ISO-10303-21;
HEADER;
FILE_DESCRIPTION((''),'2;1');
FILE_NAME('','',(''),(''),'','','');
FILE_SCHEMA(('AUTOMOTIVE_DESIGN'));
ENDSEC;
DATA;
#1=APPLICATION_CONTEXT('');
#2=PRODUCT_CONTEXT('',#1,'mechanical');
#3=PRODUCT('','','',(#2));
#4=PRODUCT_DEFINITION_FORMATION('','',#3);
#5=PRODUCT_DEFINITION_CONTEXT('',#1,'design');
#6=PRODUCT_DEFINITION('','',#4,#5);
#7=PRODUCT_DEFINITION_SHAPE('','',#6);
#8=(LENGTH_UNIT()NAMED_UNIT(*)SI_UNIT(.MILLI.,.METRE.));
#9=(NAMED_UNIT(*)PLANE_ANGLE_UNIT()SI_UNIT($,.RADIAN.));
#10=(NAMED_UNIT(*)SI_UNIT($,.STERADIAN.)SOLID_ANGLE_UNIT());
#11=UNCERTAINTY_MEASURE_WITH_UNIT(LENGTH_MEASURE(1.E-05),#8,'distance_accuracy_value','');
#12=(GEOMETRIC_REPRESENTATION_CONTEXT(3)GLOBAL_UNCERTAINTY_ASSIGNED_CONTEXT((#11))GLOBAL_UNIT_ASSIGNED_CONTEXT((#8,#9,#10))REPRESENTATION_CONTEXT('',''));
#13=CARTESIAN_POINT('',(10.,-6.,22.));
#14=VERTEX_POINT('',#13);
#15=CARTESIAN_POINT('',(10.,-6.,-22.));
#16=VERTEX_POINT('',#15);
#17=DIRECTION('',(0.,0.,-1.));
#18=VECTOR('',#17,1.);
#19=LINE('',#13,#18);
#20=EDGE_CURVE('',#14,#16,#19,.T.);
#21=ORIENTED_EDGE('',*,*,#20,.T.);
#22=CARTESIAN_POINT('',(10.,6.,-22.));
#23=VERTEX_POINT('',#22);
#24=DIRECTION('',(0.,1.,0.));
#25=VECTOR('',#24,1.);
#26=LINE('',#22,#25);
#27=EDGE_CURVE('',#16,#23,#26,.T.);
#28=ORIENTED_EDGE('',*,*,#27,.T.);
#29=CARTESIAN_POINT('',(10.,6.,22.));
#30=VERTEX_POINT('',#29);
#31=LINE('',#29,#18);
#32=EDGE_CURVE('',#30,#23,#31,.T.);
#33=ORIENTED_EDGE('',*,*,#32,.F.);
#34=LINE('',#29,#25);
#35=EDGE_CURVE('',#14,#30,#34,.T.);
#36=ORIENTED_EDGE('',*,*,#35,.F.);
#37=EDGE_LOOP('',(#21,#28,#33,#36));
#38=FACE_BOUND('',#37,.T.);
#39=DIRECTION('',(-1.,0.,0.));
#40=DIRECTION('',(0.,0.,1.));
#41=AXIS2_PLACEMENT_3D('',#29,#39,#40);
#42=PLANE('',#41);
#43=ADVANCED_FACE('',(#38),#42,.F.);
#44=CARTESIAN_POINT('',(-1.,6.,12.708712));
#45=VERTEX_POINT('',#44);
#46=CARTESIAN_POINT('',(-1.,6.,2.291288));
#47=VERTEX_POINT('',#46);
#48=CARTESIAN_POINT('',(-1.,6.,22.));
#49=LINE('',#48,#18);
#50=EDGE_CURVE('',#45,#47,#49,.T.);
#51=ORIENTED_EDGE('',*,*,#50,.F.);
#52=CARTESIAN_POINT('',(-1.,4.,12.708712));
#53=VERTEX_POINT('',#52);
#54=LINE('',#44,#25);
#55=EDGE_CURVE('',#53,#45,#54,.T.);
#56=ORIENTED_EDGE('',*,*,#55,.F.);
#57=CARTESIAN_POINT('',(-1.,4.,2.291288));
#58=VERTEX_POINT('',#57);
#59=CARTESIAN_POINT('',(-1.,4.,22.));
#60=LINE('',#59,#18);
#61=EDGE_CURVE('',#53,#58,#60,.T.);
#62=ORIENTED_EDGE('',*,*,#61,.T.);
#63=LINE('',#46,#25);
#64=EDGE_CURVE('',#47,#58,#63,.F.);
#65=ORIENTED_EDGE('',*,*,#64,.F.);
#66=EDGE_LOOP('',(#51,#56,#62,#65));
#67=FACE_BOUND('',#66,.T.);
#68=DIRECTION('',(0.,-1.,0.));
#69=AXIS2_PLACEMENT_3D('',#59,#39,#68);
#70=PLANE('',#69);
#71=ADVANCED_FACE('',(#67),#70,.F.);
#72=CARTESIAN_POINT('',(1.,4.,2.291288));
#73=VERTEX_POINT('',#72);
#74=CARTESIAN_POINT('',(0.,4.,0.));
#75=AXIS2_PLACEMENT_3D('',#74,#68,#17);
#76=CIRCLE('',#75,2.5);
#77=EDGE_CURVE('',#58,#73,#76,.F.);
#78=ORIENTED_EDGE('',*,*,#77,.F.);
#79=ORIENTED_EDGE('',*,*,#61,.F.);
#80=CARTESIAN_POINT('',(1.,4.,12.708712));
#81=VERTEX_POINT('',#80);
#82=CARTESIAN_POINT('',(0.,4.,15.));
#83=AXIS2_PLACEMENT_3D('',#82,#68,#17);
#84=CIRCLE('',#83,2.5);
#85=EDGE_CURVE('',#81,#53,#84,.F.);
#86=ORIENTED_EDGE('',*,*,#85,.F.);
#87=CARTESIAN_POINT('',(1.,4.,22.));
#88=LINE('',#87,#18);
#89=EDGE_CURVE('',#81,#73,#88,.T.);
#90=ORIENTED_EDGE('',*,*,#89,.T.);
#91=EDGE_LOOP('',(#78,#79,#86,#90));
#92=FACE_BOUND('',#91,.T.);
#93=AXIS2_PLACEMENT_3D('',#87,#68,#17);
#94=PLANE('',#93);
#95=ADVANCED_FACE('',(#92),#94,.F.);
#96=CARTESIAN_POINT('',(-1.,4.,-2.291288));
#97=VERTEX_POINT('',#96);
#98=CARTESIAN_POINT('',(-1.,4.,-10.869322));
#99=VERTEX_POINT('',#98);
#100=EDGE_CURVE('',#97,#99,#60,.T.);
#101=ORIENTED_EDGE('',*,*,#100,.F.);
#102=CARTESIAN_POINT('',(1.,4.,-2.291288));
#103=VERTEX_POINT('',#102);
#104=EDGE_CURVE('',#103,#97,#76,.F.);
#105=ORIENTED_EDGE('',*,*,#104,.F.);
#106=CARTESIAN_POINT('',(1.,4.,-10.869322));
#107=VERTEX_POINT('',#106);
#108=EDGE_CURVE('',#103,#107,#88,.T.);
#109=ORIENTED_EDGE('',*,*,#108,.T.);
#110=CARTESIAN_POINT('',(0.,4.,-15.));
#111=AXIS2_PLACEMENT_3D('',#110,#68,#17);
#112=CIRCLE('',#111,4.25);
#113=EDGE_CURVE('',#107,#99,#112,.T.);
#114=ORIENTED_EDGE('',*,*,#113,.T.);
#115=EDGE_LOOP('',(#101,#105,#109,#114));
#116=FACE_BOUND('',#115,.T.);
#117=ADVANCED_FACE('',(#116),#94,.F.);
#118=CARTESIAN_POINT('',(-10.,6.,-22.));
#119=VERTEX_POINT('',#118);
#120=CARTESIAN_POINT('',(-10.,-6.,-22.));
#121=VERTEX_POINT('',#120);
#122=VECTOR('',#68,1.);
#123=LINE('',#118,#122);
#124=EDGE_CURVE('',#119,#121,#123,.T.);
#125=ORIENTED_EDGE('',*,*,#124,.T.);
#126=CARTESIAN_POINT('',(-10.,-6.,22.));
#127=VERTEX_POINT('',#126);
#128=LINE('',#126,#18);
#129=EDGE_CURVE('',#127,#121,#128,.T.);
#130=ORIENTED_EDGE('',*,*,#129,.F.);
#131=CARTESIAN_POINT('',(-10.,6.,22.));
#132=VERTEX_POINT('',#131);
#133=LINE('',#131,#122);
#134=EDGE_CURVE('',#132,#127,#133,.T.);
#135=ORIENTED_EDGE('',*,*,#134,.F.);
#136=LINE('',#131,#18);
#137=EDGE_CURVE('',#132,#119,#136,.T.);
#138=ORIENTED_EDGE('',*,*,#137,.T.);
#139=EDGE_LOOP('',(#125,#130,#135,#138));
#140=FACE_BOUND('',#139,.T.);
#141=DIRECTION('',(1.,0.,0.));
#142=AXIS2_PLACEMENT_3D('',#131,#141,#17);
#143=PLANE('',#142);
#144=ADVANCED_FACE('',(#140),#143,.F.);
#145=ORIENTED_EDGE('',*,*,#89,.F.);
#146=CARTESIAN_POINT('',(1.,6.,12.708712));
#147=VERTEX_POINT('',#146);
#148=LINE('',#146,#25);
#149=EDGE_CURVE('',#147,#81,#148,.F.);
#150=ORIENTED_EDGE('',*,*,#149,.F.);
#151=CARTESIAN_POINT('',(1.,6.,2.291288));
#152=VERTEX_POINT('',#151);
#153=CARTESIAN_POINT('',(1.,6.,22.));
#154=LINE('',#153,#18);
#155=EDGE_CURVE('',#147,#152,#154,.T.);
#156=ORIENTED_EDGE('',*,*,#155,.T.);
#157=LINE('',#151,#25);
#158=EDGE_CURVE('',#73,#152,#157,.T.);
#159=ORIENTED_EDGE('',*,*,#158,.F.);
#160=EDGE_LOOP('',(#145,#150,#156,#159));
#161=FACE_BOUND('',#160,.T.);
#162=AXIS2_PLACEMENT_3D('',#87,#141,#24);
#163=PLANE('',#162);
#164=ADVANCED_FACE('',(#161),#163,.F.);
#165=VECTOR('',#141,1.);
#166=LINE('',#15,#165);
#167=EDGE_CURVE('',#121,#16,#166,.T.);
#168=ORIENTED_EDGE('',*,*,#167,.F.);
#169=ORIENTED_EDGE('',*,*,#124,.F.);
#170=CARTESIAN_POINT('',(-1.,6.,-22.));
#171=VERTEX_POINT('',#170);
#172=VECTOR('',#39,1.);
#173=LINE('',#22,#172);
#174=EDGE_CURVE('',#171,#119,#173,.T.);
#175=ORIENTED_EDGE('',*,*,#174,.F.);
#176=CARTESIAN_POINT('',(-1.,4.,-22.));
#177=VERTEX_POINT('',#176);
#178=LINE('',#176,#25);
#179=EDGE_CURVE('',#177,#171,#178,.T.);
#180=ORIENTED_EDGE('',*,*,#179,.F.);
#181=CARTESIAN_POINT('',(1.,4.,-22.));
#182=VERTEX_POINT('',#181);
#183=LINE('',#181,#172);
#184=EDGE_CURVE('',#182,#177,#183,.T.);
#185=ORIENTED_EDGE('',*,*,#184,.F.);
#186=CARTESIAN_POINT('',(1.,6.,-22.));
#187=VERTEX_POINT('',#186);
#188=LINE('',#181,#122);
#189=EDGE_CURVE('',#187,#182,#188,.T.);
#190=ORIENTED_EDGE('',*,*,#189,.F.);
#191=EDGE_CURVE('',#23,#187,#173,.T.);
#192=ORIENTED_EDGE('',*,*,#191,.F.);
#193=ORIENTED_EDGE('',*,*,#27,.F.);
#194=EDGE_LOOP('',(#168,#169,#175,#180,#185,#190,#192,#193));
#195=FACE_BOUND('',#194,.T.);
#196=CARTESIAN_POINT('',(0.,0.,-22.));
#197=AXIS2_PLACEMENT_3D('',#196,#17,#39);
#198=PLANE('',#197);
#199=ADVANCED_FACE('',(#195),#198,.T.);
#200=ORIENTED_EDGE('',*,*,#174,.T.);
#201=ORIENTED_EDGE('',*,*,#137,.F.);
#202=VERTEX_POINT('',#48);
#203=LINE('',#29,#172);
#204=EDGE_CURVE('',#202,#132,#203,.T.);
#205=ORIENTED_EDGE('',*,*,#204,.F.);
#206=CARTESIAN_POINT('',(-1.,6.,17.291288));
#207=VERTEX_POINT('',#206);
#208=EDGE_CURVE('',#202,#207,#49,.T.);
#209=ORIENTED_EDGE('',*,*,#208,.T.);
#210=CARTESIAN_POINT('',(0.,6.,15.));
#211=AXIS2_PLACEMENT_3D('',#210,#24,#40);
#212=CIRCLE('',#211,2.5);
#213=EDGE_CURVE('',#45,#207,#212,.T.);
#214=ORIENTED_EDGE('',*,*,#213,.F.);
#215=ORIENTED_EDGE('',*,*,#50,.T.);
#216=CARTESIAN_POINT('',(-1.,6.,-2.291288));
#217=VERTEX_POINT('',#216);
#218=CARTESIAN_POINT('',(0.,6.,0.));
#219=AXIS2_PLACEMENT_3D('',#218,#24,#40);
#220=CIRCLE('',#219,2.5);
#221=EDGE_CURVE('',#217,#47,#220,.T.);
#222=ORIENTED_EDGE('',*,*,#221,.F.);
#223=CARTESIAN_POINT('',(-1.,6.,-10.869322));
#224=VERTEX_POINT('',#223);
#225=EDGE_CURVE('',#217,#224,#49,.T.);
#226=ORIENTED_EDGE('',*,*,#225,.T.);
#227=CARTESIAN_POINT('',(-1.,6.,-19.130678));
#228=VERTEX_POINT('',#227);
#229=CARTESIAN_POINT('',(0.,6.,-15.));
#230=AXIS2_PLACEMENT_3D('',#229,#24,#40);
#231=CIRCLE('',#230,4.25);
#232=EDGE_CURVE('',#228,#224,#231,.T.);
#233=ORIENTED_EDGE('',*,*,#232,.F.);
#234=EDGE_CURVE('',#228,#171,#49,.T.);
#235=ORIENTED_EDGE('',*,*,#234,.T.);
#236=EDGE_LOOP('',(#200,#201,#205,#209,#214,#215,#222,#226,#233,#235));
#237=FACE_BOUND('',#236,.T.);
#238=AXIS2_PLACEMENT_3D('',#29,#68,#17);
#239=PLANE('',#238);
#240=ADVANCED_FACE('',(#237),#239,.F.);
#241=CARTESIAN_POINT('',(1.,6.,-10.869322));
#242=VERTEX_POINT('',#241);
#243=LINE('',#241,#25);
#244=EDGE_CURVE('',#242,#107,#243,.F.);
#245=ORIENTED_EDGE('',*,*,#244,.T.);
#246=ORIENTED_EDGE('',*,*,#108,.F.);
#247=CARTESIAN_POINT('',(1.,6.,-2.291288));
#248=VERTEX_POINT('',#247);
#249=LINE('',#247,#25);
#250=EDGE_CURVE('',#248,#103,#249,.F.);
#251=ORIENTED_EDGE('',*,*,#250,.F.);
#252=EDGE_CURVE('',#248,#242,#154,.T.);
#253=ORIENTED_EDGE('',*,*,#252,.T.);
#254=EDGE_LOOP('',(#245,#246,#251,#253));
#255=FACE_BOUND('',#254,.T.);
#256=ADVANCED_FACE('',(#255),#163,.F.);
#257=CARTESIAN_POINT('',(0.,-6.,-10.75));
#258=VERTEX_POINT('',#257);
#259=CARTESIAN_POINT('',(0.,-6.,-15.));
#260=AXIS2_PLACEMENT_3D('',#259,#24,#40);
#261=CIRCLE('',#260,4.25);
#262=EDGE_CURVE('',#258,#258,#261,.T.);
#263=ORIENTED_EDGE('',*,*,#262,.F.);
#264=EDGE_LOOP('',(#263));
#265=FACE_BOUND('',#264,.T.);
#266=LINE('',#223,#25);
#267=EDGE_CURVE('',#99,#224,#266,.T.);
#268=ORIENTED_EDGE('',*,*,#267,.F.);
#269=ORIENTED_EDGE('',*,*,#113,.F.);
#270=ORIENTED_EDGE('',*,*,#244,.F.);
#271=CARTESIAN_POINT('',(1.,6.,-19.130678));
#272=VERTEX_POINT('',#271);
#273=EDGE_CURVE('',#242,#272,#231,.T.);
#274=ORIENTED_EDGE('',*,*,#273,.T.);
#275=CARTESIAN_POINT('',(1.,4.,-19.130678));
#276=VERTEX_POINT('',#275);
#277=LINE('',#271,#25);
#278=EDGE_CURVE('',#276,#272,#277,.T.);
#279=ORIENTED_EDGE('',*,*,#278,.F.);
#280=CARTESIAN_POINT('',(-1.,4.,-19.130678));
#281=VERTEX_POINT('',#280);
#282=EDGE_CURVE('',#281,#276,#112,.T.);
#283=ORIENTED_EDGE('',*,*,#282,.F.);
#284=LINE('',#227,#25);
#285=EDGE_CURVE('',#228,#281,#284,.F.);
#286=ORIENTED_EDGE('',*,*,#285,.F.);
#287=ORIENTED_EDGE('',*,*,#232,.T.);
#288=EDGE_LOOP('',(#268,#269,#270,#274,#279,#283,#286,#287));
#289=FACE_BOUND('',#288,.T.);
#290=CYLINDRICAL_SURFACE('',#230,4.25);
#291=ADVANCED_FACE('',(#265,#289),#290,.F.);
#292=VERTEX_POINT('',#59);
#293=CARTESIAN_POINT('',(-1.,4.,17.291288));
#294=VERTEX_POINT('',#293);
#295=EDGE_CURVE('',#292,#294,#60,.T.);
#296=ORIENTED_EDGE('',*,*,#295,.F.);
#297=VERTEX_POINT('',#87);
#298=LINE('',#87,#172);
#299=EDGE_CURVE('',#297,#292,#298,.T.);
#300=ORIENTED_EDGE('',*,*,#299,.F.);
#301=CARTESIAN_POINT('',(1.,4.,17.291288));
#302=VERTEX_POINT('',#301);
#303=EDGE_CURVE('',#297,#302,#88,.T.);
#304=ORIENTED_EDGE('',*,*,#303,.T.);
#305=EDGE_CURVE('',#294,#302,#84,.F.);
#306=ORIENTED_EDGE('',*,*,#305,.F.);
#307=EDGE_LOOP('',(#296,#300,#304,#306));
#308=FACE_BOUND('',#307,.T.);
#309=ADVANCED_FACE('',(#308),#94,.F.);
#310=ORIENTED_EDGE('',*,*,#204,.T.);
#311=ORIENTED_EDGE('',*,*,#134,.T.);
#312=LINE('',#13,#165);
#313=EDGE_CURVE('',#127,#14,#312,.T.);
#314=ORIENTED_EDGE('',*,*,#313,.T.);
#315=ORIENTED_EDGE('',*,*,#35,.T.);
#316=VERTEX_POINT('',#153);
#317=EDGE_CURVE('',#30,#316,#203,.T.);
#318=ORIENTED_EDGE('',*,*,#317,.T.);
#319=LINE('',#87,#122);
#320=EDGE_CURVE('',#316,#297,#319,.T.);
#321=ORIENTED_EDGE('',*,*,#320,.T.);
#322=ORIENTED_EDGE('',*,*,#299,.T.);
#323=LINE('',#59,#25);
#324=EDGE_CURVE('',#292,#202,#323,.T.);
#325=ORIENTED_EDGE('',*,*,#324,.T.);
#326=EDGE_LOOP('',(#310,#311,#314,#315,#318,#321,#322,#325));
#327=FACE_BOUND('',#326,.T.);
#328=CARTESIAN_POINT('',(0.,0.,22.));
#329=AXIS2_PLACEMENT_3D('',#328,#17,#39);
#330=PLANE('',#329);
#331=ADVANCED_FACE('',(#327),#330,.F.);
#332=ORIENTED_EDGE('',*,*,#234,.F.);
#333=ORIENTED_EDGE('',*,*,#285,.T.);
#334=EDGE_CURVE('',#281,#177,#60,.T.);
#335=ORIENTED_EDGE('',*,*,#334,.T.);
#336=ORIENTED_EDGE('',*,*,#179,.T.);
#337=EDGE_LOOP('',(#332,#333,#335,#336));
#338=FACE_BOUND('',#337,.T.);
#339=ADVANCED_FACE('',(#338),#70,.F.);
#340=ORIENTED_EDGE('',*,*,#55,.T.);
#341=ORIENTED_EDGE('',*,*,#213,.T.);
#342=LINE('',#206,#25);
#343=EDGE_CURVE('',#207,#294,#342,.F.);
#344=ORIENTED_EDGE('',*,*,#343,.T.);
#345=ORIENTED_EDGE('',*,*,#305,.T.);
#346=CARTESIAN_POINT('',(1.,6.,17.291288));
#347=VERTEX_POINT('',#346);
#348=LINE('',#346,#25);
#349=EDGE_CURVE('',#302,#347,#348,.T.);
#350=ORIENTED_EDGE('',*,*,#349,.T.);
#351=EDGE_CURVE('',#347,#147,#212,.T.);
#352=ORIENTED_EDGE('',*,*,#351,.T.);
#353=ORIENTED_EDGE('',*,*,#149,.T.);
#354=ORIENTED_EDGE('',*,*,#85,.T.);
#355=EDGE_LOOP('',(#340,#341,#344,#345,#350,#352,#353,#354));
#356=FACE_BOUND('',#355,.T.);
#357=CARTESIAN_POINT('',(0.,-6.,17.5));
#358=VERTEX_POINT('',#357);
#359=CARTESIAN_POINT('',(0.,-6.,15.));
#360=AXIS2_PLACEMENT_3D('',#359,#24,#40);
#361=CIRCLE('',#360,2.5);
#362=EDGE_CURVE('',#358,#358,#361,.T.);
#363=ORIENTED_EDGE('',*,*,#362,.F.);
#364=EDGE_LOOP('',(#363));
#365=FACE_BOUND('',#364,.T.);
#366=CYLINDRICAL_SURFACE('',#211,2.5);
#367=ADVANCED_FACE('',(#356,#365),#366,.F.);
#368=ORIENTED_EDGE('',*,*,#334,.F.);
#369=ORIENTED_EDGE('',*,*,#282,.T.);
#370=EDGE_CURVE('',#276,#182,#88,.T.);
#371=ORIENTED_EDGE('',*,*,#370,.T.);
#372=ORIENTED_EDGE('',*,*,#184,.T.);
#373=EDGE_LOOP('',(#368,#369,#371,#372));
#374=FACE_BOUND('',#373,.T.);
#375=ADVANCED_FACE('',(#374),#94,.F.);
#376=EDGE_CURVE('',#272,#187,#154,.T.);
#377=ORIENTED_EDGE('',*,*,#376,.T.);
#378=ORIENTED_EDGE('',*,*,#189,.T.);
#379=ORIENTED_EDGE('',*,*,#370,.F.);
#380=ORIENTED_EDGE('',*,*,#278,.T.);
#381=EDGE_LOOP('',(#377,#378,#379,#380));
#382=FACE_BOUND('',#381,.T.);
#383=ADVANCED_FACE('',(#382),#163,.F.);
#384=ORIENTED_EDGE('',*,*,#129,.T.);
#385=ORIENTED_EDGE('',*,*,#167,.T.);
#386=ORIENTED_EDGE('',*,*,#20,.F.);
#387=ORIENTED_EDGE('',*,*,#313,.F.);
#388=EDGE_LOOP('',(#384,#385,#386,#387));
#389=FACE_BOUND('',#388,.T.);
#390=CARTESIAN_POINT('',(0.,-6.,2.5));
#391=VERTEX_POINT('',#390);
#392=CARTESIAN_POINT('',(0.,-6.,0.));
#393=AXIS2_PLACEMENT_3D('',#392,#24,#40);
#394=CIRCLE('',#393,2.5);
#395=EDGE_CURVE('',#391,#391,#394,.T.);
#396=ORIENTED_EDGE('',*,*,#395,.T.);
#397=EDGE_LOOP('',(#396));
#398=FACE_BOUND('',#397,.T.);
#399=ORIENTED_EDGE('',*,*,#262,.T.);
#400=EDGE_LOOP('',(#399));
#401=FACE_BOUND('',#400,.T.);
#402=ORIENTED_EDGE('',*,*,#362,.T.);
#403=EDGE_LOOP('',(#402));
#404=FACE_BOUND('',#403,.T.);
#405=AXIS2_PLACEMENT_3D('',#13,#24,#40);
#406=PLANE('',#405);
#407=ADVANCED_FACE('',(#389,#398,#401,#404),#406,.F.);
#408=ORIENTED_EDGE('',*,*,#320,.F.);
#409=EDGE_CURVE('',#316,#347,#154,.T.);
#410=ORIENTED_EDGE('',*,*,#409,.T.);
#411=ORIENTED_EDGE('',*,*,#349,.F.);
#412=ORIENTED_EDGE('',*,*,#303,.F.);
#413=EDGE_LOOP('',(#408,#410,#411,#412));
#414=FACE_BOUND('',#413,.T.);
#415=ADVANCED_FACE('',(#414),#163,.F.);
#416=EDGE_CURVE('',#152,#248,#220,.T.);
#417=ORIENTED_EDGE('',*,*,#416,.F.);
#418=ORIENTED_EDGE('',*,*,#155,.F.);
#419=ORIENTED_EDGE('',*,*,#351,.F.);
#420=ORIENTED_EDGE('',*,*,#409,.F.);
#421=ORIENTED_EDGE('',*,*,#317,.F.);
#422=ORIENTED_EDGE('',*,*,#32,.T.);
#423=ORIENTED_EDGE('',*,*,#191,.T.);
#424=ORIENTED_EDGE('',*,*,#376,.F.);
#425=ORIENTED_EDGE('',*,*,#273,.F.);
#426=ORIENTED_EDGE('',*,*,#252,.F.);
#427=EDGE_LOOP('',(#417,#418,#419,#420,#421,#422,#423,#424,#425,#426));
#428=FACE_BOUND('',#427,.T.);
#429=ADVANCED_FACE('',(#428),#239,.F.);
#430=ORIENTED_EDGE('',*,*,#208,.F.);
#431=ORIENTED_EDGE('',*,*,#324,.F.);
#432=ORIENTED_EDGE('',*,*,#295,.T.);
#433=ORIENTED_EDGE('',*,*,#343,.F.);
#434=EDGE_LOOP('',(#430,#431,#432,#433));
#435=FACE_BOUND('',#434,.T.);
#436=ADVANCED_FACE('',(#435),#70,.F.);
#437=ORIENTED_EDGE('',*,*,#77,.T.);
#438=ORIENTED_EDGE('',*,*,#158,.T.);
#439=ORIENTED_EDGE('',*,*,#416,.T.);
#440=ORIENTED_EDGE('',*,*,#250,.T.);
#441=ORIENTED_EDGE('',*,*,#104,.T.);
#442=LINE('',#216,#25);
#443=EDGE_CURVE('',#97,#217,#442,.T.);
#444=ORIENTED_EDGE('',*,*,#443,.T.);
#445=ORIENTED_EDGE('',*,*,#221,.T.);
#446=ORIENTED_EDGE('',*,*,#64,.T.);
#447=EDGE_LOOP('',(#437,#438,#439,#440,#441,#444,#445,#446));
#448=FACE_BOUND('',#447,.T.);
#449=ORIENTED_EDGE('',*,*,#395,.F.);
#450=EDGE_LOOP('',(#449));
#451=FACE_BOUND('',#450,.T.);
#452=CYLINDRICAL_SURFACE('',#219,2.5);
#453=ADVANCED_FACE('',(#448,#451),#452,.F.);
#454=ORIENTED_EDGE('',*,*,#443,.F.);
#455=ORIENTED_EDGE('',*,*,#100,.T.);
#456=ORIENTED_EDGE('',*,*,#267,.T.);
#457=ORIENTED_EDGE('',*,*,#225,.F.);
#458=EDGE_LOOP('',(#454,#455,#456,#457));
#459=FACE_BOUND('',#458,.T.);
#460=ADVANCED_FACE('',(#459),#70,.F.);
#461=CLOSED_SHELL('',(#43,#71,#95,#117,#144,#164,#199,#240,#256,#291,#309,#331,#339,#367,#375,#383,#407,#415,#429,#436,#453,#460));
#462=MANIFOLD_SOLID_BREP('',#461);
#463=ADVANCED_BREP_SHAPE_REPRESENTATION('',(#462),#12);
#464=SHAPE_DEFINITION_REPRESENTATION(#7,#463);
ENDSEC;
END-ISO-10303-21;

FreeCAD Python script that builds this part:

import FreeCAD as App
import Part
import Sketcher
from FreeCAD import Vector

doc = App.newDocument("Part")
body = doc.addObject("PartDesign::Body", "Body")

sketch1 = body.newObject("Sketcher::SketchObject", "Sketch")
sketch1.AttachmentSupport = (doc.getObject("XY_Plane"), [""])
sketch1.MapMode = "FlatFace"
sketch1.addGeometry(Part.LineSegment(Vector(-10, 6, 0), Vector(-10, -6, 0)), False)
sketch1.addGeometry(Part.LineSegment(Vector(-10, -6, 0), Vector(10, -6, 0)), False)
sketch1.addGeometry(Part.LineSegment(Vector(10, -6, 0), Vector(10, 6, 0)), False)
sketch1.addGeometry(Part.LineSegment(Vector(10, 6, 0), Vector(-10, 6, 0)), False)
sketch1.addConstraint(Sketcher.Constraint("Coincident", 0, 2, 1, 1))
sketch1.addConstraint(Sketcher.Constraint("Coincident", 1, 2, 2, 1))
sketch1.addConstraint(Sketcher.Constraint("Coincident", 2, 2, 3, 1))
sketch1.addConstraint(Sketcher.Constraint("Coincident", 3, 2, 0, 1))
sketch1.addConstraint(Sketcher.Constraint("Vertical", 0))
sketch1.addConstraint(Sketcher.Constraint("Horizontal", 1))
sketch1.addConstraint(Sketcher.Constraint("Vertical", 2))
sketch1.addConstraint(Sketcher.Constraint("Horizontal", 3))
sketch1.addConstraint(Sketcher.Constraint("Symmetric", 0, 2, 2, 2, -1, 1))
sketch1.addConstraint(Sketcher.Constraint("DistanceX", 1, 1, 1, 2, 20.0))
sketch1.addConstraint(Sketcher.Constraint("DistanceY", 0, 2, 0, 1, 12.0))
pad1 = body.newObject("PartDesign::Pad", "Pad")
pad1.Profile = sketch1
pad1.Length = 44
pad1.Midplane = True

sketch2 = body.newObject("Sketcher::SketchObject", "Sketch001")
sketch2.AttachmentSupport = (doc.getObject("XZ_Plane"), [""])
sketch2.MapMode = "FlatFace"
sketch2.AttachmentOffset = App.Placement(Vector(0, 0, -6), App.Rotation())
sketch2.addGeometry(Part.Circle(Vector(0, 15, 0), Vector(0, 0, 1), 2.5), False)
sketch2.addGeometry(Part.Circle(Vector(0, 0, 0), Vector(0, 0, 1), 2.5), False)
sketch2.addGeometry(Part.Circle(Vector(0, -15, 0), Vector(0, 0, 1), 2.5), False)
sketch2.addConstraint(Sketcher.Constraint("Coincident", 1, 3, -1, 1))
sketch2.addConstraint(Sketcher.Constraint("Equal", 0, 1))
sketch2.addConstraint(Sketcher.Constraint("Equal", 1, 2))
sketch2.addConstraint(Sketcher.Constraint("Symmetric", 0, 3, 2, 3, -1, 1))
sketch2.addConstraint(Sketcher.Constraint("PointOnObject", 0, 3, -2))
sketch2.addConstraint(Sketcher.Constraint("Diameter", 0, 5.0))
sketch2.addConstraint(Sketcher.Constraint("DistanceY", -1, 1, 0, 3, 15.0))
doc.recompute()
hole = body.newObject("PartDesign::Hole", "Hole")
hole.Profile = sketch2
hole.ThreadType = "None"
hole.Diameter = 5
hole.DepthType = "ThroughAll"
hole.Reversed = True

sketch3 = body.newObject("Sketcher::SketchObject", "Sketch002")
sketch3.AttachmentSupport = (doc.getObject("XY_Plane"), [""])
sketch3.MapMode = "FlatFace"
sketch3.AttachmentOffset = App.Placement(Vector(0, 0, -22), App.Rotation())
sketch3.addGeometry(Part.LineSegment(Vector(1, 6, 0), Vector(1, 4, 0)), False)
sketch3.addGeometry(Part.LineSegment(Vector(1, 4, 0), Vector(-1, 4, 0)), False)
sketch3.addGeometry(Part.LineSegment(Vector(-1, 4, 0), Vector(-1, 6, 0)), False)
sketch3.addGeometry(Part.LineSegment(Vector(-1, 6, 0), Vector(1, 6, 0)), False)
sketch3.addConstraint(Sketcher.Constraint("Coincident", 0, 2, 1, 1))
sketch3.addConstraint(Sketcher.Constraint("Coincident", 1, 2, 2, 1))
sketch3.addConstraint(Sketcher.Constraint("Coincident", 2, 2, 3, 1))
sketch3.addConstraint(Sketcher.Constraint("Coincident", 3, 2, 0, 1))
sketch3.addConstraint(Sketcher.Constraint("Vertical", 0))
sketch3.addConstraint(Sketcher.Constraint("Horizontal", 1))
sketch3.addConstraint(Sketcher.Constraint("Vertical", 2))
sketch3.addConstraint(Sketcher.Constraint("Horizontal", 3))
sketch3.addConstraint(Sketcher.Constraint("Equal", 3, 0))
sketch3.addConstraint(Sketcher.Constraint("DistanceX", 1, 2, 1, 1, 2.0))
sketch3.addConstraint(Sketcher.Constraint("DistanceX", -1, 1, 0, 2, 1.0))
sketch3.addConstraint(Sketcher.Constraint("DistanceY", -1, 1, 0, 2, 4.0))
pocket1 = body.newObject("PartDesign::Pocket", "Pocket")
pocket1.Profile = sketch3
pocket1.Type = "ThroughAll"
pocket1.Reversed = True

sketch4 = body.newObject("Sketcher::SketchObject", "Sketch003")
sketch4.AttachmentSupport = (doc.getObject("XZ_Plane"), [""])
sketch4.MapMode = "FlatFace"
sketch4.AttachmentOffset = App.Placement(Vector(0, 0, -6), App.Rotation())
sketch4.addGeometry(Part.Circle(Vector(0, -15, 0), Vector(0, 0, 1), 4.2), False)
sketch4.addConstraint(Sketcher.Constraint("PointOnObject", 0, 3, -2))
sketch4.addConstraint(Sketcher.Constraint("Diameter", 0, 8.5))
sketch4.addConstraint(Sketcher.Constraint("DistanceY", 0, 3, -1, 1, 15.0))
doc.recompute()
hole2 = body.newObject("PartDesign::Hole", "Hole001")
hole2.Profile = sketch4
hole2.ThreadType = "None"
hole2.Diameter = 8.5
hole2.DepthType = "ThroughAll"
hole2.Reversed = True

doc.recompute()
